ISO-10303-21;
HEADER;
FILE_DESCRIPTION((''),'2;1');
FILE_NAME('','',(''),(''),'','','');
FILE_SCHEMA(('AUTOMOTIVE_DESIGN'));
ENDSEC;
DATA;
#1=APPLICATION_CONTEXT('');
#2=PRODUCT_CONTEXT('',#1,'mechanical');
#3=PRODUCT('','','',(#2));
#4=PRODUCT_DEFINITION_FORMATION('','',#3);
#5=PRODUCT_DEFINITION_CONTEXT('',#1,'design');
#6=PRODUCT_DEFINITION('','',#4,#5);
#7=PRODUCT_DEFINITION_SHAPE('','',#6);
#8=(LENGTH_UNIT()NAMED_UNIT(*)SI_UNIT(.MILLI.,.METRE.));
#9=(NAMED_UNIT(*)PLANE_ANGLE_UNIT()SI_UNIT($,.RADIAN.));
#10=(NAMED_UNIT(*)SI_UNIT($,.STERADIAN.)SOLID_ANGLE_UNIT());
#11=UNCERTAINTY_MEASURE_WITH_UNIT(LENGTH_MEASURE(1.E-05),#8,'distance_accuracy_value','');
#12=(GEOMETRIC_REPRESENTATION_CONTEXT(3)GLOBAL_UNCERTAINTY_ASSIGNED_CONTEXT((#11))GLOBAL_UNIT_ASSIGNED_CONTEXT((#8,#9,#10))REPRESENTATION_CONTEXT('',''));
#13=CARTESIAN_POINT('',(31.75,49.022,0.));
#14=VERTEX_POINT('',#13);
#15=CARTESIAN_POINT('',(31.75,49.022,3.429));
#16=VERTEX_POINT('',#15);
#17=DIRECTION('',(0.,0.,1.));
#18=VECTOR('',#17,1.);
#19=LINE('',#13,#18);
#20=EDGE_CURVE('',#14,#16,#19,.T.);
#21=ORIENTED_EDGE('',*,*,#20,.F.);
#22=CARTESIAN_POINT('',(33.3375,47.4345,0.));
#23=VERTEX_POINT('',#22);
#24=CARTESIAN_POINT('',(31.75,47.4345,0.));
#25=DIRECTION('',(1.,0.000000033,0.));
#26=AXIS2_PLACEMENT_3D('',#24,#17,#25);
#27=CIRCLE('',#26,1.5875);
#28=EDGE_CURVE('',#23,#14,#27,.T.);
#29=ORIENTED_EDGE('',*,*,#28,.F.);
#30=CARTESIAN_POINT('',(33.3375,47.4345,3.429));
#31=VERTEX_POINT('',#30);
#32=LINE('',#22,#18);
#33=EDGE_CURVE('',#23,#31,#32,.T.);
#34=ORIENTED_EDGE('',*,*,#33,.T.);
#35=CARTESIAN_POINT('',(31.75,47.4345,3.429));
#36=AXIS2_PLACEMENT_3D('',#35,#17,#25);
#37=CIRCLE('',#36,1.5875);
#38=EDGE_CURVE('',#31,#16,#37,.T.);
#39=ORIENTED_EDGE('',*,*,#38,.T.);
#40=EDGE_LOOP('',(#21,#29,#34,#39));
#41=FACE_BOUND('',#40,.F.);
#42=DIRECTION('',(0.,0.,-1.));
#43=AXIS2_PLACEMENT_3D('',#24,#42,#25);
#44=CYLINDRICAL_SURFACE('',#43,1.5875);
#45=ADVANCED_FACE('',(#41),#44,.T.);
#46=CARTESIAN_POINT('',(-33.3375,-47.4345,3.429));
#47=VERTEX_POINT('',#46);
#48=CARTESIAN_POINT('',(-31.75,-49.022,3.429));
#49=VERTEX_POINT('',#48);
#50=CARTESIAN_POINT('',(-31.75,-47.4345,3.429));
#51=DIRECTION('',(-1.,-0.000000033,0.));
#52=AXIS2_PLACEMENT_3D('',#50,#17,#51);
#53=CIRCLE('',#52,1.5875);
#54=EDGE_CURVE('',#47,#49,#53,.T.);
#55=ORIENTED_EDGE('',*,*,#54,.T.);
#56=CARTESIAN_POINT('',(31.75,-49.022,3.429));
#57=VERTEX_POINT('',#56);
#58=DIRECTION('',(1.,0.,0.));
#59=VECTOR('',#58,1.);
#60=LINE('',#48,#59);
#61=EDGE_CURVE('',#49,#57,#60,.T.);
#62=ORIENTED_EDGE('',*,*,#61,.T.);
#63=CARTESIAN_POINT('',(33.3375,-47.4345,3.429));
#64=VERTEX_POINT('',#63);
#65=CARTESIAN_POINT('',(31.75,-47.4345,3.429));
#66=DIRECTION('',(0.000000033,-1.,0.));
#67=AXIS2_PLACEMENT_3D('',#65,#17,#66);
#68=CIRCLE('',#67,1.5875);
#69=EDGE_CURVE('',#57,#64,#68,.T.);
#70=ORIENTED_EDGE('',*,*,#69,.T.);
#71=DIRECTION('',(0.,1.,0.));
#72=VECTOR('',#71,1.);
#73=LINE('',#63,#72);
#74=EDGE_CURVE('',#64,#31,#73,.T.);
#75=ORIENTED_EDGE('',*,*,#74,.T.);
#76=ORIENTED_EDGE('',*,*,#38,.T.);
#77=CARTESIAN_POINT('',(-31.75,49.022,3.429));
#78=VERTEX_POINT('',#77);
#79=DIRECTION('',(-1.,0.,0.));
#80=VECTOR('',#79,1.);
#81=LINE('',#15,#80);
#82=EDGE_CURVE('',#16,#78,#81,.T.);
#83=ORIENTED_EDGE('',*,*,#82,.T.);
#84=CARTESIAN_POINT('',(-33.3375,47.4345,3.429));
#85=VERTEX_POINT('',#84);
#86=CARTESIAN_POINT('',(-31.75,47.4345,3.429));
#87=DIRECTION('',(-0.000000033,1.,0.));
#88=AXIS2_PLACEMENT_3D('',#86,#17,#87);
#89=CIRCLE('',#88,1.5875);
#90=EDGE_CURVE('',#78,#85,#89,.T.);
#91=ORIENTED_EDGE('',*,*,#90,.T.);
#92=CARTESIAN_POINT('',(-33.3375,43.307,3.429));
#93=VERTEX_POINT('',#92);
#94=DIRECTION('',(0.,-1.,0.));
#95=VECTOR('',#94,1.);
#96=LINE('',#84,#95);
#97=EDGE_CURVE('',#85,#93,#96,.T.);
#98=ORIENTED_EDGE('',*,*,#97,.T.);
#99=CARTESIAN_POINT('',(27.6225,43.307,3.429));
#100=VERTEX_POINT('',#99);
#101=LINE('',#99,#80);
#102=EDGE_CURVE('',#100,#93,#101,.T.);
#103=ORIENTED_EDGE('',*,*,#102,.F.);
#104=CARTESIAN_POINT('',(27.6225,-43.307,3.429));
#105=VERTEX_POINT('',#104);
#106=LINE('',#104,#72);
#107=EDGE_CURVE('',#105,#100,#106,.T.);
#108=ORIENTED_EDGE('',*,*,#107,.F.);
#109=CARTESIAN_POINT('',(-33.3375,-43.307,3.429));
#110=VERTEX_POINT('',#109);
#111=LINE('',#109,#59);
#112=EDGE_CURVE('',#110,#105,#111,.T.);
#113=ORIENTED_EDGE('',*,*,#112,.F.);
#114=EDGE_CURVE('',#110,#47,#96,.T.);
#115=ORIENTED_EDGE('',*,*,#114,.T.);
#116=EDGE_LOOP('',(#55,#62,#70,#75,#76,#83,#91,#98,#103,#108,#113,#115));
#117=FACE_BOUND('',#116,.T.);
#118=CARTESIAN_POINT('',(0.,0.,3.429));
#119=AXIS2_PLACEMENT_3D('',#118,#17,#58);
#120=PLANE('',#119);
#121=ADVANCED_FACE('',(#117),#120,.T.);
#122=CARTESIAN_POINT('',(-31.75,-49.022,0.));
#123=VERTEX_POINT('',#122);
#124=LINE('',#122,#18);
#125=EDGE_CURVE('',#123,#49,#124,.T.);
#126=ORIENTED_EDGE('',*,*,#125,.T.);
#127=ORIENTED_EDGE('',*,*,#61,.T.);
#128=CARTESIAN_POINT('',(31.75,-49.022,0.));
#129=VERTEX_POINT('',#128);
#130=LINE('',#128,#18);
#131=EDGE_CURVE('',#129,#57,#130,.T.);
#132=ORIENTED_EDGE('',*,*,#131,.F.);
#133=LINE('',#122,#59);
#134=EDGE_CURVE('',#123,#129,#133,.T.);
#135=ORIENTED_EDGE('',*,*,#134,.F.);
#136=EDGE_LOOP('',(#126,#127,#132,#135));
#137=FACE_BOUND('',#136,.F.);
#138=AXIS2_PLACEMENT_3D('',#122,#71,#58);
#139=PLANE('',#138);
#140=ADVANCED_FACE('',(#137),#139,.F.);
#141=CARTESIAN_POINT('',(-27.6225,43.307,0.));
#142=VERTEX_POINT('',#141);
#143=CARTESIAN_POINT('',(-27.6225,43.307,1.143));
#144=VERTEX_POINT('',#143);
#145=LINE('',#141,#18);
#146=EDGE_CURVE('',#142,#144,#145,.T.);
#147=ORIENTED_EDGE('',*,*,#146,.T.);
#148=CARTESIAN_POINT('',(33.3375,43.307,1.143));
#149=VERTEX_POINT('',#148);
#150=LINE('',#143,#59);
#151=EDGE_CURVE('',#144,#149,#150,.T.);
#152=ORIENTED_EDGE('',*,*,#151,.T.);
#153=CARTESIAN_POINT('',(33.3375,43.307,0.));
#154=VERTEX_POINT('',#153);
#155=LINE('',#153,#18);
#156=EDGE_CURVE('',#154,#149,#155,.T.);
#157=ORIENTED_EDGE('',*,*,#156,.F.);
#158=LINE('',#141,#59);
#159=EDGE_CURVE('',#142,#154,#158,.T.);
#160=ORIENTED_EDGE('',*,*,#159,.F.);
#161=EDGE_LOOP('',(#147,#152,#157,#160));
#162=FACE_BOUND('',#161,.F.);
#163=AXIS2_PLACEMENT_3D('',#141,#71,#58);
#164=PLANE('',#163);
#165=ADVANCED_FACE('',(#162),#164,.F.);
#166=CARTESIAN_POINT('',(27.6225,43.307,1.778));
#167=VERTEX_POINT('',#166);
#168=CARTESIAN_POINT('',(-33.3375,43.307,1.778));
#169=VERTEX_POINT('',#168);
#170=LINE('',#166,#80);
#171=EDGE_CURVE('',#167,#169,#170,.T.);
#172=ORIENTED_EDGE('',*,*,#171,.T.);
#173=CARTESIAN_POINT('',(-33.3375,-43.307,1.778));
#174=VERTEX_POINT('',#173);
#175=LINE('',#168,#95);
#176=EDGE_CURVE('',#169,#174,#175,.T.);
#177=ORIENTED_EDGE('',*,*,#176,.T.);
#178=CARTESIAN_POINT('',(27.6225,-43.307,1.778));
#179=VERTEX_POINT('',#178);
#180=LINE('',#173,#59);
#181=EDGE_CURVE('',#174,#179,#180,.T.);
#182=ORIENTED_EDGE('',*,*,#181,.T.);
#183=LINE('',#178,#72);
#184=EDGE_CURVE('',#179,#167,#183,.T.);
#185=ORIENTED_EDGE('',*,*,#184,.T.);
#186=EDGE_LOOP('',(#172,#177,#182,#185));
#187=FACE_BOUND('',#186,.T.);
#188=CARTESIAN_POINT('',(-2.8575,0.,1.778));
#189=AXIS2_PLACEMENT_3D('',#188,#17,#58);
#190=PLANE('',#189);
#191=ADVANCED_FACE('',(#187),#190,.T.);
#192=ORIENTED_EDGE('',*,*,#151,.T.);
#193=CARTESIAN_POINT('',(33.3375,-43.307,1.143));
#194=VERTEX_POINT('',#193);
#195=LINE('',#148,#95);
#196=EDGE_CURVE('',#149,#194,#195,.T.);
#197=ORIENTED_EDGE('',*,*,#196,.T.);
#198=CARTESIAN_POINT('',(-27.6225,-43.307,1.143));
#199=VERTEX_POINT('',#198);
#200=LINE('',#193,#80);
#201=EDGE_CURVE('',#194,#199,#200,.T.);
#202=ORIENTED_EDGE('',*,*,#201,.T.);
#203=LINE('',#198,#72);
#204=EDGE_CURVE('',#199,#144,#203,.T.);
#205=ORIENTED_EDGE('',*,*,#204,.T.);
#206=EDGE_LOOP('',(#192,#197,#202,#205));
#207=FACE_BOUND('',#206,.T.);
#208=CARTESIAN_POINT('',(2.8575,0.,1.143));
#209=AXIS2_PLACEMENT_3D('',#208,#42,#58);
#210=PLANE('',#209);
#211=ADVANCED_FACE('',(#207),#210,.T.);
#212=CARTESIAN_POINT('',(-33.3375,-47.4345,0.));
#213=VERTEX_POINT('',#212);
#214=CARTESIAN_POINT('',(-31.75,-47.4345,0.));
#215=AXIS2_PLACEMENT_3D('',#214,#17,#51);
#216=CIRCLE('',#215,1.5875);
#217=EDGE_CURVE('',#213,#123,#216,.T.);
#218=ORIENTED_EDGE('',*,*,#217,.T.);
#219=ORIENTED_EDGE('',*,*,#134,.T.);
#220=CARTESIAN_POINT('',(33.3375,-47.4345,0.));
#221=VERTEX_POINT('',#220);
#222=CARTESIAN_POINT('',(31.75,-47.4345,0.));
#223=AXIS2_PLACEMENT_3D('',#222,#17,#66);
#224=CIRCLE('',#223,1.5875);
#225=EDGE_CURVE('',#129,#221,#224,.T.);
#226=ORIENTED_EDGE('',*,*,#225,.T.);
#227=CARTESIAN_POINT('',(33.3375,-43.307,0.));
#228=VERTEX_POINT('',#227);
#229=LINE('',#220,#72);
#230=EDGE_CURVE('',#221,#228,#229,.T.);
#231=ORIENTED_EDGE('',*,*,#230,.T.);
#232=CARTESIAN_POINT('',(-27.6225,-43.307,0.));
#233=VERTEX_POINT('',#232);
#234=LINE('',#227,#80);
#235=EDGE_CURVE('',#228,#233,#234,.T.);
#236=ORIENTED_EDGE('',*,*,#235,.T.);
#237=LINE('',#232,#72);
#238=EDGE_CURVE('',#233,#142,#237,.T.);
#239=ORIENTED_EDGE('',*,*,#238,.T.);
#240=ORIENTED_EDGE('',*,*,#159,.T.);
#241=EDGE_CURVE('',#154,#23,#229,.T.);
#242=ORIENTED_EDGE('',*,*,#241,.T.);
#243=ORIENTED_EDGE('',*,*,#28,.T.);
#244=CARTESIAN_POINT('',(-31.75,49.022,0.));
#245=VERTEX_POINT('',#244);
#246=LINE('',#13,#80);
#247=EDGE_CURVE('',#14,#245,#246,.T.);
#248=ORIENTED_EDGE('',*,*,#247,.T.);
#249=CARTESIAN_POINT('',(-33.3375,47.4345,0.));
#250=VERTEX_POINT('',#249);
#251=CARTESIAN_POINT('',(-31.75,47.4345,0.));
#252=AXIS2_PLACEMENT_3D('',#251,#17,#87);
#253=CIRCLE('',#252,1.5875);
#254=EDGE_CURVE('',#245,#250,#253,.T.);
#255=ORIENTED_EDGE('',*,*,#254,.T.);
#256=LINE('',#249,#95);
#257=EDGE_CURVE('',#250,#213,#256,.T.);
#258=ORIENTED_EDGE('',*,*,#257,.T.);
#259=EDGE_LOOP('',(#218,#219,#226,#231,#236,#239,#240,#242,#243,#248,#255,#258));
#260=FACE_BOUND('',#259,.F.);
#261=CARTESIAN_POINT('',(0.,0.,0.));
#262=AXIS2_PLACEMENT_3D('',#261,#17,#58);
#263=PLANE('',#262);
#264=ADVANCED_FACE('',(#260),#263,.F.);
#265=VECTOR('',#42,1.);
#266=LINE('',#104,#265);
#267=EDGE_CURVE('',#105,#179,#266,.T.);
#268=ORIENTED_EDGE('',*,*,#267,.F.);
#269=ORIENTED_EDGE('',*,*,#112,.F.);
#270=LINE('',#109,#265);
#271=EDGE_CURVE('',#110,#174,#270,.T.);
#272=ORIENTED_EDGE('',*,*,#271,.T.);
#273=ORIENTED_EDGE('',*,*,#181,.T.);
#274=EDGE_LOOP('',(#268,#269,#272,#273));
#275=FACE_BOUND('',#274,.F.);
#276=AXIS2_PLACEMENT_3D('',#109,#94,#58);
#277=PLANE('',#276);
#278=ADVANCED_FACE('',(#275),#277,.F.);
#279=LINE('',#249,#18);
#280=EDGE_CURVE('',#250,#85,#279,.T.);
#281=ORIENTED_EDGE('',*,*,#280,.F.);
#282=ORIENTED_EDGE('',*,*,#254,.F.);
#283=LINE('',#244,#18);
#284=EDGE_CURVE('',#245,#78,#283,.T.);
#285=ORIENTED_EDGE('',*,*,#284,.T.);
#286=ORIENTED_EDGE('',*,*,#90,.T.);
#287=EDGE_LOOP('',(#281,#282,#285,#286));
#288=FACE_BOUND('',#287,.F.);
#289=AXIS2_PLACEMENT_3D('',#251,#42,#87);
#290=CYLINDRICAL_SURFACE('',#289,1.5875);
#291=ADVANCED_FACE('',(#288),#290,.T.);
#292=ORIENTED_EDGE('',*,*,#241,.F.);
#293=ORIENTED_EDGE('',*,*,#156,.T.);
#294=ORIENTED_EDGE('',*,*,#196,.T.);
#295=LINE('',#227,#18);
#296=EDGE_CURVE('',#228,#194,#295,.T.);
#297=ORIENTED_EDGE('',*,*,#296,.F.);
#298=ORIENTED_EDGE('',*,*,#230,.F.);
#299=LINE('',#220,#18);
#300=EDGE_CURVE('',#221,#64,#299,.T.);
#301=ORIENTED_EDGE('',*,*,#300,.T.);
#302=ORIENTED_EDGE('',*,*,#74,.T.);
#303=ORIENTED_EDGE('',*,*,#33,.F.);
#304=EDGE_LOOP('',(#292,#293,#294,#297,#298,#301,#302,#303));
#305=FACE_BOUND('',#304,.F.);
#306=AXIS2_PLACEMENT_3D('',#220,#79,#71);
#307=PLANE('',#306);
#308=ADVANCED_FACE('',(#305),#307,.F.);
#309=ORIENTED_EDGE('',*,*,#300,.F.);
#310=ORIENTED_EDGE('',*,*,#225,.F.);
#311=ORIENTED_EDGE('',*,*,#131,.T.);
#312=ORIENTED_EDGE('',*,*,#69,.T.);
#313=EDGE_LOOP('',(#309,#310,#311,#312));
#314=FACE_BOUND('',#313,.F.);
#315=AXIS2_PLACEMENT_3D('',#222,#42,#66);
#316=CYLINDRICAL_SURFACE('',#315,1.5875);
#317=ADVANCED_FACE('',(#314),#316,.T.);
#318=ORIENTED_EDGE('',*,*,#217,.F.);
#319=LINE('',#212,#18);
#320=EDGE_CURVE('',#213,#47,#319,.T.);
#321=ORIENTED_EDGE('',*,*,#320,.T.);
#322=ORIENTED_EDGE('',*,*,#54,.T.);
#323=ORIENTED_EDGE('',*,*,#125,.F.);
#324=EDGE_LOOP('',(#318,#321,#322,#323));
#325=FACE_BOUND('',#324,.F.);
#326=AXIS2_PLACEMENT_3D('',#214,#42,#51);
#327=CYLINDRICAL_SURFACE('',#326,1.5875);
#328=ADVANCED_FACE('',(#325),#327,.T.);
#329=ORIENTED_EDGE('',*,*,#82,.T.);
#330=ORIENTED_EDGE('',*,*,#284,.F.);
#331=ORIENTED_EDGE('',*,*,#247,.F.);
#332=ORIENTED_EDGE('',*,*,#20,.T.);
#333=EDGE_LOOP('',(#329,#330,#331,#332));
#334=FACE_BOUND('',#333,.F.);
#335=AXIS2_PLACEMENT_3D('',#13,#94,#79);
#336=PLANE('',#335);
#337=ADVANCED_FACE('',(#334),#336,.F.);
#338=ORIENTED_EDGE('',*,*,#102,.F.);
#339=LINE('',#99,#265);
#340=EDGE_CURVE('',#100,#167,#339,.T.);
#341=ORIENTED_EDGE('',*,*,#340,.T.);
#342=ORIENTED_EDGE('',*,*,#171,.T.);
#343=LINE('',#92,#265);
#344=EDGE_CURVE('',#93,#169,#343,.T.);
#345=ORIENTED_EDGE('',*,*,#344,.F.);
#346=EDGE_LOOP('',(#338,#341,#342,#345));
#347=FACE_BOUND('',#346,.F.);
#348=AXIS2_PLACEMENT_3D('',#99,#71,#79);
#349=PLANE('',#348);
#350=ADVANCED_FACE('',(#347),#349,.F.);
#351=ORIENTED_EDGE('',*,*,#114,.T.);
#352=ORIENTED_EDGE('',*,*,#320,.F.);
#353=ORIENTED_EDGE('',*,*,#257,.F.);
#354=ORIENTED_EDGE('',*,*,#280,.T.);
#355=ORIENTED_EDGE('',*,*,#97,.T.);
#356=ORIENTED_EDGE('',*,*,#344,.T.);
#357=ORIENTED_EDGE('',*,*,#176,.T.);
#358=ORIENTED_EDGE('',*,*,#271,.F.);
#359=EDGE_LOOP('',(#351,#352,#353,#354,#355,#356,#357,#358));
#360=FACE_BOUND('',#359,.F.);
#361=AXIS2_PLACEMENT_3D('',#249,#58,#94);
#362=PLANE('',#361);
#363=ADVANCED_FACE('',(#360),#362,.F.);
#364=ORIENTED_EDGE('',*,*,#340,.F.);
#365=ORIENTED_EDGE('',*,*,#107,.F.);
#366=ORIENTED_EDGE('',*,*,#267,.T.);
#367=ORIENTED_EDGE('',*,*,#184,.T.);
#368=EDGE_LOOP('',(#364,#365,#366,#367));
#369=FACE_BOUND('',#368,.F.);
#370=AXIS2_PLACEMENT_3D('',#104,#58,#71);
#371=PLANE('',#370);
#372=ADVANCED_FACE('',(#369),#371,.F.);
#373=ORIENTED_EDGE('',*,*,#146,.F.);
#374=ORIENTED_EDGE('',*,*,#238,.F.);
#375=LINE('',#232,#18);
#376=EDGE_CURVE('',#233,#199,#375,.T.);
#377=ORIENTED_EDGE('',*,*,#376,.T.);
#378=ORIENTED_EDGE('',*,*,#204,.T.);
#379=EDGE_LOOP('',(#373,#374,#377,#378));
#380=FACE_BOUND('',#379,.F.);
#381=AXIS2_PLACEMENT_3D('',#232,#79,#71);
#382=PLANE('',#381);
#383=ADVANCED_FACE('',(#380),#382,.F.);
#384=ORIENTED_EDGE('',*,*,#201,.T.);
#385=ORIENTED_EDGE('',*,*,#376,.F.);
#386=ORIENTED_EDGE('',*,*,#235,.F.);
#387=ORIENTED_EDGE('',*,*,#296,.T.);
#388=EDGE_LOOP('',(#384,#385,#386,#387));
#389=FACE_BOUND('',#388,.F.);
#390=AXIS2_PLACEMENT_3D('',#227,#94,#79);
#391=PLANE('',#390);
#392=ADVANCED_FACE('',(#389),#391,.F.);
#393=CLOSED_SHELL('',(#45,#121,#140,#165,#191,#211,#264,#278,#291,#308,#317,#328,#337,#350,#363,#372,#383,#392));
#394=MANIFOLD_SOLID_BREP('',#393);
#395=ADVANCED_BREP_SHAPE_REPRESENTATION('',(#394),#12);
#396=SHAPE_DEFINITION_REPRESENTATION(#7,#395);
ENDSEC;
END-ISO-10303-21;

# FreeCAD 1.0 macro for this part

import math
import FreeCAD as App
import Part
import Sketcher
from FreeCAD import Vector
Q = App.Units.Quantity

doc = App.newDocument("Part")
params = doc.addObject("Spreadsheet::Sheet", "Params")
for row, (alias, value) in enumerate([
    ("sketch1_width", "2.5 in"),
    ("sketch1_radius", "0.0625 in"),
    ("sketch1_height", "3.735 in"),
    ("pad1_length", "0.135 in"),
    ("sketch2_width", "2.4 in"),
    ("sketch2_height", "3.41 in"),
    ("pocket1_length", "0.065 in"),
    ("sketch3_width", "2.4 in"),
    ("sketch3_height", "3.41 in"),
    ("pocket2_length", "0.045 in"),
], start=1):
    params.set(f"A{row}", alias)
    params.set(f"B{row}", "=" + value)
    params.setAlias(f"B{row}", alias)

body = doc.addObject("PartDesign::Body", "Body")

sketch1 = body.newObject("Sketcher::SketchObject", "Sketch")
sketch1.AttachmentSupport = (doc.getObject("XY_Plane"), [""])
sketch1.MapMode = "FlatFace"
sketch1.addGeometry(Part.LineSegment(Vector(-31.8, -49, 0), Vector(31.8, -49, 0)), False)
sketch1.addGeometry(Part.ArcOfCircle(Part.Circle(Vector(31.7, -47.4, 0), Vector(0, 0, 1), 1.6), math.radians(-90), math.radians(0)), False)
sketch1.addGeometry(Part.LineSegment(Vector(33.3, -47.4, 0), Vector(33.3, 47.4, 0)), False)
sketch1.addGeometry(Part.ArcOfCircle(Part.Circle(Vector(31.7, 47.4, 0), Vector(0, 0, 1), 1.6), math.radians(0), math.radians(90)), False)
sketch1.addGeometry(Part.LineSegment(Vector(31.8, 49, 0), Vector(-31.8, 49, 0)), False)
sketch1.addGeometry(Part.ArcOfCircle(Part.Circle(Vector(-31.7, 47.4, 0), Vector(0, 0, 1), 1.6), math.radians(90), math.radians(180)), False)
sketch1.addGeometry(Part.LineSegment(Vector(-33.3, 47.4, 0), Vector(-33.3, -47.4, 0)), False)
sketch1.addGeometry(Part.ArcOfCircle(Part.Circle(Vector(-31.7, -47.4, 0), Vector(0, 0, 1), 1.6), math.radians(-180), math.radians(-90)), False)
sketch1.addConstraint(Sketcher.Constraint("Tangent", 0, 2, 1, 1))
sketch1.addConstraint(Sketcher.Constraint("Tangent", 1, 2, 2, 1))
sketch1.addConstraint(Sketcher.Constraint("Tangent", 2, 2, 3, 1))
sketch1.addConstraint(Sketcher.Constraint("Tangent", 3, 2, 4, 1))
sketch1.addConstraint(Sketcher.Constraint("Tangent", 4, 2, 5, 1))
sketch1.addConstraint(Sketcher.Constraint("Tangent", 5, 2, 6, 1))
sketch1.addConstraint(Sketcher.Constraint("Tangent", 6, 2, 7, 1))
sketch1.addConstraint(Sketcher.Constraint("Tangent", 7, 2, 0, 1))
sketch1.addConstraint(Sketcher.Constraint("Horizontal", 0))
sketch1.addConstraint(Sketcher.Constraint("Vertical", 2))
sketch1.addConstraint(Sketcher.Constraint("Horizontal", 4))
sketch1.addConstraint(Sketcher.Constraint("Vertical", 6))
sketch1.addConstraint(Sketcher.Constraint("Equal", 1, 3))
sketch1.addConstraint(Sketcher.Constraint("Equal", 3, 5))
sketch1.addConstraint(Sketcher.Constraint("Equal", 5, 7))
sketch1.addConstraint(Sketcher.Constraint("Symmetric", 1, 3, 5, 3, -1, 1))
sketch1.addConstraint(Sketcher.Constraint("DistanceX", 0, 1, 0, 2, Q("2.5 in")))
sketch1.addConstraint(Sketcher.Constraint("Radius", 1, Q("0.0625 in")))
sketch1.addConstraint(Sketcher.Constraint("DistanceY", 2, 1, 2, 2, Q("3.735 in")))
sketch1.setExpression("Constraints[16]", "Params.sketch1_width")
sketch1.setExpression("Constraints[17]", "Params.sketch1_radius")
sketch1.setExpression("Constraints[18]", "Params.sketch1_height")
pad1 = body.newObject("PartDesign::Pad", "Pad")
pad1.Profile = sketch1
pad1.setExpression("Length", "Params.pad1_length")

sketch2 = body.newObject("Sketcher::SketchObject", "Sketch001")
sketch2.AttachmentSupport = (doc.getObject("XY_Plane"), [""])
sketch2.MapMode = "FlatFace"
sketch2.AttachmentOffset = App.Placement(Vector(0, 0, 0.135 * 25.4), App.Rotation())
sketch2.addGeometry(Part.LineSegment(Vector(28, -43, 0), Vector(28, 43, 0)), False)
sketch2.addGeometry(Part.LineSegment(Vector(28, 43, 0), Vector(-33, 43, 0)), False)
sketch2.addGeometry(Part.LineSegment(Vector(-33, 43, 0), Vector(-33, -43, 0)), False)
sketch2.addGeometry(Part.LineSegment(Vector(-33, -43, 0), Vector(28, -43, 0)), False)
sketch2.addConstraint(Sketcher.Constraint("Coincident", 0, 2, 1, 1))
sketch2.addConstraint(Sketcher.Constraint("Coincident", 1, 2, 2, 1))
sketch2.addConstraint(Sketcher.Constraint("Coincident", 2, 2, 3, 1))
sketch2.addConstraint(Sketcher.Constraint("Coincident", 3, 2, 0, 1))
sketch2.addConstraint(Sketcher.Constraint("Vertical", 0))
sketch2.addConstraint(Sketcher.Constraint("Horizontal", 1))
sketch2.addConstraint(Sketcher.Constraint("Vertical", 2))
sketch2.addConstraint(Sketcher.Constraint("Horizontal", 3))
sketch2.addConstraint(Sketcher.Constraint("DistanceX", 1, 2, 1, 1, Q("2.4 in")))
sketch2.addConstraint(Sketcher.Constraint("DistanceY", 0, 1, 0, 2, Q("3.41 in")))
sketch2.addConstraint(Sketcher.Constraint("DistanceY", -1, 1, 0, 2, Q("1.705 in")))
sketch2.addConstraint(Sketcher.Constraint("DistanceX", 1, 2, -1, 1, Q("1.3125 in")))
sketch2.setExpression("Constraints[8]", "Params.sketch2_width")
sketch2.setExpression("Constraints[9]", "Params.sketch2_height")
pocket1 = body.newObject("PartDesign::Pocket", "Pocket")
pocket1.Profile = sketch2
pocket1.setExpression("Length", "Params.pocket1_length")

sketch3 = body.newObject("Sketcher::SketchObject", "Sketch002")
sketch3.AttachmentSupport = (doc.getObject("XY_Plane"), [""])
sketch3.MapMode = "FlatFace"
sketch3.addGeometry(Part.LineSegment(Vector(-28, 43, 0), Vector(33, 43, 0)), False)
sketch3.addGeometry(Part.LineSegment(Vector(33, 43, 0), Vector(33, -43, 0)), False)
sketch3.addGeometry(Part.LineSegment(Vector(33, -43, 0), Vector(-28, -43, 0)), False)
sketch3.addGeometry(Part.LineSegment(Vector(-28, -43, 0), Vector(-28, 43, 0)), False)
sketch3.addConstraint(Sketcher.Constraint("Coincident", 0, 2, 1, 1))
sketch3.addConstraint(Sketcher.Constraint("Coincident", 1, 2, 2, 1))
sketch3.addConstraint(Sketcher.Constraint("Coincident", 2, 2, 3, 1))
sketch3.addConstraint(Sketcher.Constraint("Coincident", 3, 2, 0, 1))
sketch3.addConstraint(Sketcher.Constraint("Horizontal", 0))
sketch3.addConstraint(Sketcher.Constraint("Vertical", 1))
sketch3.addConstraint(Sketcher.Constraint("Horizontal", 2))
sketch3.addConstraint(Sketcher.Constraint("Vertical", 3))
sketch3.addConstraint(Sketcher.Constraint("DistanceX", 0, 1, 0, 2, Q("2.4 in")))
sketch3.addConstraint(Sketcher.Constraint("DistanceY", 1, 2, 1, 1, Q("3.41 in")))
sketch3.addConstraint(Sketcher.Constraint("DistanceX", -1, 1, 0, 2, Q("1.3125 in")))
sketch3.addConstraint(Sketcher.Constraint("DistanceY", -1, 1, 0, 2, Q("1.705 in")))
sketch3.setExpression("Constraints[8]", "Params.sketch3_width")
sketch3.setExpression("Constraints[9]", "Params.sketch3_height")
pocket2 = body.newObject("PartDesign::Pocket", "Pocket001")
pocket2.Profile = sketch3
pocket2.setExpression("Length", "Params.pocket2_length")
pocket2.Reversed = True

doc.recompute()
